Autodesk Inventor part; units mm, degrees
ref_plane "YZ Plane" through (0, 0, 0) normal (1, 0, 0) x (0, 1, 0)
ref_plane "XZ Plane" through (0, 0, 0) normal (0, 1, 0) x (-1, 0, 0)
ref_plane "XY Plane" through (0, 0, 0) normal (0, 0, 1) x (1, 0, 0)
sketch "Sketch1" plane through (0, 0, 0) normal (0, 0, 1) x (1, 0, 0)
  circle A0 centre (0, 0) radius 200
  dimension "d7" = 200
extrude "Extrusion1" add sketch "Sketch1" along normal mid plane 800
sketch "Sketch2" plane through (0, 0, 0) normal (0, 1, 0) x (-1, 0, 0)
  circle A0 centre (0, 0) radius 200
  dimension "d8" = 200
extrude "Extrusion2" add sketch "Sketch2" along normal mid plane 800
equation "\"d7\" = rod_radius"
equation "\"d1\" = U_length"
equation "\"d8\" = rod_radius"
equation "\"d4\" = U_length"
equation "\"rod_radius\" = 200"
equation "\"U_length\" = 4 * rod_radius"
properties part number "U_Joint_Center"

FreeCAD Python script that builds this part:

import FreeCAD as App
import Part
import Sketcher

V = App.Vector

doc = App.newDocument("Part")
body = doc.addObject("PartDesign::Body", "Body")

# Sketch on XY plane
sketch1 = body.newObject("Sketcher::SketchObject", "Sketch")
sketch1.AttachmentSupport = (doc.getObject("XY_Plane"), [""])
sketch1.MapMode = "FlatFace"
sketch1.addGeometry(Part.Circle(V(0, 0, 0), V(0, 0, 1), 200), False)
sketch1.addConstraint([
    Sketcher.Constraint("Coincident", 0, 3, -1, 1),
    Sketcher.Constraint("Diameter", 0, 400.0),
])
pad1 = body.newObject("PartDesign::Pad", "Pad")
pad1.Profile = sketch1
pad1.Length = 800
pad1.Midplane = True

# Sketch on XZ plane
sketch2 = body.newObject("Sketcher::SketchObject", "Sketch001")
sketch2.AttachmentSupport = (doc.getObject("XZ_Plane"), [""])
sketch2.MapMode = "FlatFace"
sketch2.addGeometry(Part.Circle(V(0, 0, 0), V(0, 0, 1), 200), False)
sketch2.addConstraint([
    Sketcher.Constraint("Coincident", 0, 3, -1, 1),
    Sketcher.Constraint("Diameter", 0, 400.0),
])
pad2 = body.newObject("PartDesign::Pad", "Pad001")
pad2.Profile = sketch2
pad2.Length = 800
pad2.Midplane = True

doc.recompute()
